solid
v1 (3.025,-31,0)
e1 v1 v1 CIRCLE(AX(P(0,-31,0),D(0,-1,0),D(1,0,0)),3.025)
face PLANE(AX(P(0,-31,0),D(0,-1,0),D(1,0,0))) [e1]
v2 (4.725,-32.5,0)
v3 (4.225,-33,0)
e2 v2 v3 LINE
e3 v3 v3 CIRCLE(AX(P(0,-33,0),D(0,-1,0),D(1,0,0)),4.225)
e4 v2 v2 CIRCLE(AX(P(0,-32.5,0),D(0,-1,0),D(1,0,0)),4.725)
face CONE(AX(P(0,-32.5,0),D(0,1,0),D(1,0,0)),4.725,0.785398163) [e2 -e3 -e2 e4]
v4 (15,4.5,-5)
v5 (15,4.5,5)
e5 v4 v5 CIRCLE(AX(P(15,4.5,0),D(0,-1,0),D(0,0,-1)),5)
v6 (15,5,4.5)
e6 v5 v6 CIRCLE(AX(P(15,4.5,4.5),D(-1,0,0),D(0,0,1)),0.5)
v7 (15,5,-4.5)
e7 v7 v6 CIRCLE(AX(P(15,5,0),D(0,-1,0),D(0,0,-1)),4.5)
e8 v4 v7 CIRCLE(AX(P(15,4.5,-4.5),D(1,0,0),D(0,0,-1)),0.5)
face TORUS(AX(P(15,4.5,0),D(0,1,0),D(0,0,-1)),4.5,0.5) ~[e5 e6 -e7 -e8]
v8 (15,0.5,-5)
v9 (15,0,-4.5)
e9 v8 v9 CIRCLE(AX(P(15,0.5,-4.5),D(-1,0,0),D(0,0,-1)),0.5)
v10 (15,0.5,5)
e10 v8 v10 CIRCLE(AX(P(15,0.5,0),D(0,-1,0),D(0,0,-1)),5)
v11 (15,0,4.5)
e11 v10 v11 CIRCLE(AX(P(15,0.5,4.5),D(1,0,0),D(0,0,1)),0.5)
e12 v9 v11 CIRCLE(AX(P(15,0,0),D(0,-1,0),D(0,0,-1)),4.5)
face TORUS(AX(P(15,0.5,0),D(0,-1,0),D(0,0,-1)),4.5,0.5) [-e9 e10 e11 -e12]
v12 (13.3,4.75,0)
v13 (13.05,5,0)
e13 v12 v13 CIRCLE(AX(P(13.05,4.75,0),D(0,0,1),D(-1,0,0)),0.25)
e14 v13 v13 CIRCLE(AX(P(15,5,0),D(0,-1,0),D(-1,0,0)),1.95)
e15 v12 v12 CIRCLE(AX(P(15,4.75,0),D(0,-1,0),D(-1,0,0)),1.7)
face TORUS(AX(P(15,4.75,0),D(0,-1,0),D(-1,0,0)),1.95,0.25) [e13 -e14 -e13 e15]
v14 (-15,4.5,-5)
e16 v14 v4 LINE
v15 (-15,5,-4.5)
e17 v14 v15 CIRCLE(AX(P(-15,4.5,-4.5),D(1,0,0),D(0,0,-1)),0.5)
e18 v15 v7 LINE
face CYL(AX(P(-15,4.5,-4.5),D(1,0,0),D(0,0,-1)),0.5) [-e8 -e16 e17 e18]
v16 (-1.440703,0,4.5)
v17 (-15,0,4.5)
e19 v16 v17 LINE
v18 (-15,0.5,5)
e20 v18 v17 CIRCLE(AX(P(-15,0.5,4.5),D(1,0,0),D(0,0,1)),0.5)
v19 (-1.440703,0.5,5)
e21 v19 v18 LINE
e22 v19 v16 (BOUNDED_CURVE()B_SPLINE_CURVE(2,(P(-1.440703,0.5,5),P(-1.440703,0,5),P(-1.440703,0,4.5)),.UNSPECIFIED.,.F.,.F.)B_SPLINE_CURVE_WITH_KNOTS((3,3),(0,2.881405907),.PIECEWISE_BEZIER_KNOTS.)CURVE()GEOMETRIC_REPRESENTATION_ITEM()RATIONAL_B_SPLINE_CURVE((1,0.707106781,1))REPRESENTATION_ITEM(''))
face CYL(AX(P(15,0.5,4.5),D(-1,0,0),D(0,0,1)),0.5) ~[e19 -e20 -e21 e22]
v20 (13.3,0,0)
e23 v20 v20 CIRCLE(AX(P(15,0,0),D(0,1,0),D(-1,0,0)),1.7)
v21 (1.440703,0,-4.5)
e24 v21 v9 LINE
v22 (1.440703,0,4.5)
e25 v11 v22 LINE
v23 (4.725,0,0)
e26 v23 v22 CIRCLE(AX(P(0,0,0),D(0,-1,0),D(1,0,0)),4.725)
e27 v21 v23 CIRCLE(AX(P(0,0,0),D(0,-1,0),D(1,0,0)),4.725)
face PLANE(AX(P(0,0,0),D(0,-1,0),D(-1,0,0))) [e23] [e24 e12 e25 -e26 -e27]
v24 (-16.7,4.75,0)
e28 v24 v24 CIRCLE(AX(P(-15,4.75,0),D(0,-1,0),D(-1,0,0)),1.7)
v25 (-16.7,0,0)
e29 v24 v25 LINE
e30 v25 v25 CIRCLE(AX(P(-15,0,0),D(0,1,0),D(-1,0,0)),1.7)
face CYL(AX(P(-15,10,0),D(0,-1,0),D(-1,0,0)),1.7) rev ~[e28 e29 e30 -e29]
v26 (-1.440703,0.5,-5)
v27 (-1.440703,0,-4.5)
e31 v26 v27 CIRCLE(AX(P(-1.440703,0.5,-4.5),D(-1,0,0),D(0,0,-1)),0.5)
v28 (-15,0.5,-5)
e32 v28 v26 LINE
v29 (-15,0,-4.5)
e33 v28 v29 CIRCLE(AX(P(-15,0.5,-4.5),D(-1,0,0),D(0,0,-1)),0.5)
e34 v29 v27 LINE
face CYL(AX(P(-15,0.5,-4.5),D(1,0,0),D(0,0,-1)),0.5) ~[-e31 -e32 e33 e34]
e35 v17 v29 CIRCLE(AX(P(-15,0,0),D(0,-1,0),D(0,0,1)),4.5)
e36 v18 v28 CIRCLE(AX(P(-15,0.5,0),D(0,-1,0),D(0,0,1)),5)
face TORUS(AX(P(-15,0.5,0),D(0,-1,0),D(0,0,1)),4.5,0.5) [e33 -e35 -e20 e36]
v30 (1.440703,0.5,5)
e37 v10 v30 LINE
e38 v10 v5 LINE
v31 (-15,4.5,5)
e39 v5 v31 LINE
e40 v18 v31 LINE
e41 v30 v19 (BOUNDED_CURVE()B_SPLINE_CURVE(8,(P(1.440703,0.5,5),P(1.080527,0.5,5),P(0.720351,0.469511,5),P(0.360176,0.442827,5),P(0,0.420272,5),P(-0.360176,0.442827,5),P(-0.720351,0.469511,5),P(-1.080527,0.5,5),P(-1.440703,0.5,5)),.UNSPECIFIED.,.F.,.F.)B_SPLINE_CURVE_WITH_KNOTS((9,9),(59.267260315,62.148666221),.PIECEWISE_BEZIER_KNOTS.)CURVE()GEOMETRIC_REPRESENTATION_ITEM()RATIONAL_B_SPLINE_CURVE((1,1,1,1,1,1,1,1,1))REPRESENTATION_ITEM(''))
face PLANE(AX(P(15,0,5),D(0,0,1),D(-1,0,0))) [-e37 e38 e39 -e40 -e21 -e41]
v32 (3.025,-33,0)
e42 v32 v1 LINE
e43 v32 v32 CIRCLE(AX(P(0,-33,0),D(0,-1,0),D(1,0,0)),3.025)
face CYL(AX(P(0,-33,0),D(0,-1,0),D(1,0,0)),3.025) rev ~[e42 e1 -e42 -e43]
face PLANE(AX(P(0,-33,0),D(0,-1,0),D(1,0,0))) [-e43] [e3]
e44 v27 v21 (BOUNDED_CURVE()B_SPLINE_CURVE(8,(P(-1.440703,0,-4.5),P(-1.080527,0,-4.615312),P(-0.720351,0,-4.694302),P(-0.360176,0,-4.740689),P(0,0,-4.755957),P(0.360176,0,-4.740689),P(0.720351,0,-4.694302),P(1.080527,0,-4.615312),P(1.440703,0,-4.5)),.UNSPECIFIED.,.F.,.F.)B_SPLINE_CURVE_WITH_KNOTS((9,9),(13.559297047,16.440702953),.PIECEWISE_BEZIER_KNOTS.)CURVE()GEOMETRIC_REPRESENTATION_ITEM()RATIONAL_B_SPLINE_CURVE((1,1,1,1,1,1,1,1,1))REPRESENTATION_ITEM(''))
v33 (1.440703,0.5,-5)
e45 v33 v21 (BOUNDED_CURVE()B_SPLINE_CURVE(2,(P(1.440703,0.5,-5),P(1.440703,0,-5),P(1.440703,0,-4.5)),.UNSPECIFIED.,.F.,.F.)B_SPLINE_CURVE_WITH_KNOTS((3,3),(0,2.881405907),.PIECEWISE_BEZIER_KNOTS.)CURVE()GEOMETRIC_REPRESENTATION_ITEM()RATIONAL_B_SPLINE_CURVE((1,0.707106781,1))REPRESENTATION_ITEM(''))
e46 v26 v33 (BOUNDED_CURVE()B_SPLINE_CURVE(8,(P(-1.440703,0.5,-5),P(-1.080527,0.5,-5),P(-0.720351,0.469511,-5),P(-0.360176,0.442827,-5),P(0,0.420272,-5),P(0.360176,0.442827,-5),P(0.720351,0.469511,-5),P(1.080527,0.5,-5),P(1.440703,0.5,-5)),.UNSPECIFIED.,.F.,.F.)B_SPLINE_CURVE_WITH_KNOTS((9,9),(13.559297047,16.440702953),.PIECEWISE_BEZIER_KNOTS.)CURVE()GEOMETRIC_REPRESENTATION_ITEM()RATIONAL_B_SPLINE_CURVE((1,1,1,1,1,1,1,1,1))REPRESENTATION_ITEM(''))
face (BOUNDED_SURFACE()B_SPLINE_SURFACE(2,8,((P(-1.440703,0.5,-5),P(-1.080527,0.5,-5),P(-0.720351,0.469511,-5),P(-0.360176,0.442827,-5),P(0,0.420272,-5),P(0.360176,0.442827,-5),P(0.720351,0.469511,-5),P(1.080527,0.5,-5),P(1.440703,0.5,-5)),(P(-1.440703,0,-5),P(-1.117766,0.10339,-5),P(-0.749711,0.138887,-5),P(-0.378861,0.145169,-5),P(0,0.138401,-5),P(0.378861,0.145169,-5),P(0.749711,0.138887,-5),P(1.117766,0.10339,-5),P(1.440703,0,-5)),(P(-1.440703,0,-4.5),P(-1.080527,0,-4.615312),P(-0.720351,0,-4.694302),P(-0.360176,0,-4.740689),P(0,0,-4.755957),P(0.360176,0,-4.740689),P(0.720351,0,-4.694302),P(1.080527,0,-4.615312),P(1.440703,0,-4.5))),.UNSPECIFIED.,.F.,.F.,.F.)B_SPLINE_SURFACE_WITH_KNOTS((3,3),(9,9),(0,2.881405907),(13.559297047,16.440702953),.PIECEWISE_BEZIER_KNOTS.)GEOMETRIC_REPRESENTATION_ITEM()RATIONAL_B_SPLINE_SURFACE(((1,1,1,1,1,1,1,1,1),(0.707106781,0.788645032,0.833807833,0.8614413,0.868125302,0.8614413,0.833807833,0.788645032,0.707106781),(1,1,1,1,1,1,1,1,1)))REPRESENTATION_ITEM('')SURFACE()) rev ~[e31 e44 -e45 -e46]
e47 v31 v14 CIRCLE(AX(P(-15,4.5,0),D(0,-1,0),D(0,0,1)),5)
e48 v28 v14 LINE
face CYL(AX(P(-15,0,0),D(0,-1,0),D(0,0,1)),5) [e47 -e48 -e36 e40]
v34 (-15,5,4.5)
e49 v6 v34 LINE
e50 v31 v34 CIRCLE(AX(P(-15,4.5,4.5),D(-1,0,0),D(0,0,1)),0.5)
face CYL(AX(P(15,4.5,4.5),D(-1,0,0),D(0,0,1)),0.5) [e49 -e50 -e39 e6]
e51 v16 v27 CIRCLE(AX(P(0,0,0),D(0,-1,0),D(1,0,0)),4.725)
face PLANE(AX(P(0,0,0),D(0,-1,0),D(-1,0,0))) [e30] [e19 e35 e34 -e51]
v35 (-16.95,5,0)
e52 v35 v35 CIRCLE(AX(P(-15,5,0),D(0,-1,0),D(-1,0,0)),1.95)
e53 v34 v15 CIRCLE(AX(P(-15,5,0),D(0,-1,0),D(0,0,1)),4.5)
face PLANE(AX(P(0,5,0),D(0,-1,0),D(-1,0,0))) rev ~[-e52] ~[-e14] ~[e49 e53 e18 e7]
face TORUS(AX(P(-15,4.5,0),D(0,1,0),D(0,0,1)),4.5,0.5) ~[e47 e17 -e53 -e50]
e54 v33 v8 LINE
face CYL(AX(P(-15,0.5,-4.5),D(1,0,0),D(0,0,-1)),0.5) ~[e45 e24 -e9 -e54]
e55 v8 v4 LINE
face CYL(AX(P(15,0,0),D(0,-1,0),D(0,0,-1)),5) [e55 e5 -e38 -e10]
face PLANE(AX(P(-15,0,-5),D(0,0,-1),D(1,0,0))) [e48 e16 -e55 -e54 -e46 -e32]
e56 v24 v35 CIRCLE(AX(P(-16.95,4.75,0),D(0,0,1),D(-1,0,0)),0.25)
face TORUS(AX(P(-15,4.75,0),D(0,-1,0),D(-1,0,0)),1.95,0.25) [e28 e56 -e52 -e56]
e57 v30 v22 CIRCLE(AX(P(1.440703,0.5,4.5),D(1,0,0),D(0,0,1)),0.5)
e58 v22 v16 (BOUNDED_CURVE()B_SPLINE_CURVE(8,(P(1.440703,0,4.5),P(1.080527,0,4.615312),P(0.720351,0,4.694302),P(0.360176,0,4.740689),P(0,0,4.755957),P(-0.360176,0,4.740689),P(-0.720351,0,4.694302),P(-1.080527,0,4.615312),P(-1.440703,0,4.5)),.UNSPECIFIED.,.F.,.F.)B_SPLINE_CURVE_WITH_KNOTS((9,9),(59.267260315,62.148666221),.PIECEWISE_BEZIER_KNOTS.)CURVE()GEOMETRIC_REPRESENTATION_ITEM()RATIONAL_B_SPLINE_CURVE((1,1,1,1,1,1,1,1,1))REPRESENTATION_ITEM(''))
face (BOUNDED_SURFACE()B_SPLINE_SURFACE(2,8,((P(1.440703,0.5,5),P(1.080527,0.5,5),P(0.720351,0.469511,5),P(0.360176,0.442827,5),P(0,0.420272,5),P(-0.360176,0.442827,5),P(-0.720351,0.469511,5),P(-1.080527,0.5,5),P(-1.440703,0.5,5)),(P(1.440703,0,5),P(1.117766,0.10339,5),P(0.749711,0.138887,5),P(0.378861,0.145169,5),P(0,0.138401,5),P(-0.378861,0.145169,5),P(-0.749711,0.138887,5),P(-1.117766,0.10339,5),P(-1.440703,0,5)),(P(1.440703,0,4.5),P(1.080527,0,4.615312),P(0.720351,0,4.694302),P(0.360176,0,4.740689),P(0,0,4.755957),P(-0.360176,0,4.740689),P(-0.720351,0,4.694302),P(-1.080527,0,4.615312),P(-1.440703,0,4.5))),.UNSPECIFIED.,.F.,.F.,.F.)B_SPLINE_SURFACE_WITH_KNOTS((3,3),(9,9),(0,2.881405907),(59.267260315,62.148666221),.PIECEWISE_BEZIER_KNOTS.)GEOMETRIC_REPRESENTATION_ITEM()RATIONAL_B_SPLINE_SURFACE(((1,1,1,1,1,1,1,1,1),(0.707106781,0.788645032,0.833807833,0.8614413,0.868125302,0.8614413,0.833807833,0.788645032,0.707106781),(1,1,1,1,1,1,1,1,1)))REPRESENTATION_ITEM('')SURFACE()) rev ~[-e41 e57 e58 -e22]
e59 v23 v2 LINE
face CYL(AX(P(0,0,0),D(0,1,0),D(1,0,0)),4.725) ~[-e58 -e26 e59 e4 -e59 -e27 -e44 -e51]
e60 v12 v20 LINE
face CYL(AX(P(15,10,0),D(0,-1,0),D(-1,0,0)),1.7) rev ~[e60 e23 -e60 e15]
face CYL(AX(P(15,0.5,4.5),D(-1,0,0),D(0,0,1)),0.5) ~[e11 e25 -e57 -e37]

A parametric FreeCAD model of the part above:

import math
import FreeCAD as App
import Part
import Sketcher

V = App.Vector


def edges_at(feature, points):
    """Names of the edges that pass closest to the given points."""
    edges = feature.Shape.Edges
    near = lambda p: min(range(len(edges)), key=lambda i: edges[i].distToShape(Part.Vertex(*p))[0])
    return sorted({f"Edge{near(p) + 1}" for p in points})

doc = App.newDocument("Part")
body = doc.addObject("PartDesign::Body", "Body")

# Sketch on XZ plane
sketch1 = body.newObject("Sketcher::SketchObject", "Sketch")
sketch1.AttachmentSupport = (doc.getObject("XZ_Plane"), [""])
sketch1.MapMode = "FlatFace"
sketch1.addGeometry(Part.LineSegment(V(15, -5, 0), V(-15, -5, 0)), False)
sketch1.addGeometry(Part.ArcOfCircle(Part.Circle(V(-15, 0, 0), V(0, 0, 1), 5), math.radians(90), math.radians(270)), False)
sketch1.addGeometry(Part.LineSegment(V(-15, 5, 0), V(15, 5, 0)), False)
sketch1.addGeometry(Part.ArcOfCircle(Part.Circle(V(15, 0, 0), V(0, 0, 1), 5), math.radians(-90), math.radians(90)), False)
sketch1.addConstraint(Sketcher.Constraint("Tangent", 0, 2, 1, 2))
sketch1.addConstraint(Sketcher.Constraint("Tangent", 1, 1, 2, 1))
sketch1.addConstraint(Sketcher.Constraint("Tangent", 2, 2, 3, 2))
sketch1.addConstraint(Sketcher.Constraint("Tangent", 3, 1, 0, 1))
sketch1.addConstraint(Sketcher.Constraint("Horizontal", 0))
sketch1.addConstraint(Sketcher.Constraint("Horizontal", 2))
sketch1.addConstraint(Sketcher.Constraint("Symmetric", 1, 3, 3, 3, -1, 1))
sketch1.addConstraint(Sketcher.Constraint("Radius", 1, 5.0))
sketch1.addConstraint(Sketcher.Constraint("DistanceX", 0, 2, 0, 1, 30.0))
pad1 = body.newObject("PartDesign::Pad", "Pad")
pad1.Profile = sketch1
pad1.Length = 5
pad1.Reversed = True

# Sketch on XZ plane
sketch2 = body.newObject("Sketcher::SketchObject", "Sketch001")
sketch2.AttachmentSupport = (doc.getObject("XZ_Plane"), [""])
sketch2.MapMode = "FlatFace"
sketch2.AttachmentOffset = App.Placement(V(0, 0, -5), App.Rotation())
sketch2.addGeometry(Part.Circle(V(-15, 0, 0), V(0, 0, 1), 1.7), False)
sketch2.addGeometry(Part.Circle(V(15, 0, 0), V(0, 0, 1), 1.7), False)
sketch2.addConstraint(Sketcher.Constraint("Equal", 0, 1))
sketch2.addConstraint(Sketcher.Constraint("Symmetric", 0, 3, 1, 3, -1, 1))
sketch2.addConstraint(Sketcher.Constraint("PointOnObject", 0, 3, -1))
sketch2.addConstraint(Sketcher.Constraint("Diameter", 0, 3.4))
sketch2.addConstraint(Sketcher.Constraint("DistanceX", 0, 3, -1, 1, 15.0))
doc.recompute()
hole = body.newObject("PartDesign::Hole", "Hole")
hole.Profile = sketch2
hole.ThreadType = "None"
hole.Diameter = 3.4
hole.DepthType = "Dimension"
hole.Depth = 5
hole.DrillPoint = "Angled"
hole.DrillPointAngle = 118
hole.Reversed = True

# Sketch on XZ plane
sketch3 = body.newObject("Sketcher::SketchObject", "Sketch002")
sketch3.AttachmentSupport = (doc.getObject("XZ_Plane"), [""])
sketch3.MapMode = "FlatFace"
sketch3.addGeometry(Part.Circle(V(0, 0, 0), V(0, 0, 1), 4.7), False)
sketch3.addConstraint(Sketcher.Constraint("Coincident", 0, 3, -1, 1))
sketch3.addConstraint(Sketcher.Constraint("Diameter", 0, 9.45))
pad2 = body.newObject("PartDesign::Pad", "Pad001")
pad2.Profile = sketch3
pad2.Length = 33

# Sketch on XZ plane
sketch4 = body.newObject("Sketcher::SketchObject", "Sketch003")
sketch4.AttachmentSupport = (doc.getObject("XZ_Plane"), [""])
sketch4.MapMode = "FlatFace"
sketch4.AttachmentOffset = App.Placement(V(0, 0, 33), App.Rotation())
sketch4.addGeometry(Part.Circle(V(0, 0, 0), V(0, 0, 1), 3), False)
sketch4.addConstraint(Sketcher.Constraint("Coincident", 0, 3, -1, 1))
sketch4.addConstraint(Sketcher.Constraint("Diameter", 0, 6.05))
pocket1 = body.newObject("PartDesign::Pocket", "Pocket")
pocket1.Profile = sketch4
pocket1.Length = 2
doc.recompute()

fillet = body.newObject("PartDesign::Fillet", "Fillet")
fillet.Base = (pocket1, edges_at(pocket1, [
    (20, 5, 0),
    (0, 5, -5),
    (-20, 5, 0),
    (0, 0, -5),
    (20, 0, 0),
    (0, 0, 5),
    (-20, 0, 0),
    (0, 5, 5),
]))
fillet.Radius = 0.5
doc.recompute()

chamfer = body.newObject("PartDesign::Chamfer", "Chamfer")
chamfer.Base = (fillet, edges_at(fillet, [(-4.725, -33, 0)]))
chamfer.Size = 0.5
doc.recompute()

fillet2 = body.newObject("PartDesign::Fillet", "Fillet001")
fillet2.Base = (chamfer, edges_at(chamfer, [(16.7, 5, 0), (-13.3, 5, 0)]))
fillet2.Radius = 0.25

doc.recompute()
